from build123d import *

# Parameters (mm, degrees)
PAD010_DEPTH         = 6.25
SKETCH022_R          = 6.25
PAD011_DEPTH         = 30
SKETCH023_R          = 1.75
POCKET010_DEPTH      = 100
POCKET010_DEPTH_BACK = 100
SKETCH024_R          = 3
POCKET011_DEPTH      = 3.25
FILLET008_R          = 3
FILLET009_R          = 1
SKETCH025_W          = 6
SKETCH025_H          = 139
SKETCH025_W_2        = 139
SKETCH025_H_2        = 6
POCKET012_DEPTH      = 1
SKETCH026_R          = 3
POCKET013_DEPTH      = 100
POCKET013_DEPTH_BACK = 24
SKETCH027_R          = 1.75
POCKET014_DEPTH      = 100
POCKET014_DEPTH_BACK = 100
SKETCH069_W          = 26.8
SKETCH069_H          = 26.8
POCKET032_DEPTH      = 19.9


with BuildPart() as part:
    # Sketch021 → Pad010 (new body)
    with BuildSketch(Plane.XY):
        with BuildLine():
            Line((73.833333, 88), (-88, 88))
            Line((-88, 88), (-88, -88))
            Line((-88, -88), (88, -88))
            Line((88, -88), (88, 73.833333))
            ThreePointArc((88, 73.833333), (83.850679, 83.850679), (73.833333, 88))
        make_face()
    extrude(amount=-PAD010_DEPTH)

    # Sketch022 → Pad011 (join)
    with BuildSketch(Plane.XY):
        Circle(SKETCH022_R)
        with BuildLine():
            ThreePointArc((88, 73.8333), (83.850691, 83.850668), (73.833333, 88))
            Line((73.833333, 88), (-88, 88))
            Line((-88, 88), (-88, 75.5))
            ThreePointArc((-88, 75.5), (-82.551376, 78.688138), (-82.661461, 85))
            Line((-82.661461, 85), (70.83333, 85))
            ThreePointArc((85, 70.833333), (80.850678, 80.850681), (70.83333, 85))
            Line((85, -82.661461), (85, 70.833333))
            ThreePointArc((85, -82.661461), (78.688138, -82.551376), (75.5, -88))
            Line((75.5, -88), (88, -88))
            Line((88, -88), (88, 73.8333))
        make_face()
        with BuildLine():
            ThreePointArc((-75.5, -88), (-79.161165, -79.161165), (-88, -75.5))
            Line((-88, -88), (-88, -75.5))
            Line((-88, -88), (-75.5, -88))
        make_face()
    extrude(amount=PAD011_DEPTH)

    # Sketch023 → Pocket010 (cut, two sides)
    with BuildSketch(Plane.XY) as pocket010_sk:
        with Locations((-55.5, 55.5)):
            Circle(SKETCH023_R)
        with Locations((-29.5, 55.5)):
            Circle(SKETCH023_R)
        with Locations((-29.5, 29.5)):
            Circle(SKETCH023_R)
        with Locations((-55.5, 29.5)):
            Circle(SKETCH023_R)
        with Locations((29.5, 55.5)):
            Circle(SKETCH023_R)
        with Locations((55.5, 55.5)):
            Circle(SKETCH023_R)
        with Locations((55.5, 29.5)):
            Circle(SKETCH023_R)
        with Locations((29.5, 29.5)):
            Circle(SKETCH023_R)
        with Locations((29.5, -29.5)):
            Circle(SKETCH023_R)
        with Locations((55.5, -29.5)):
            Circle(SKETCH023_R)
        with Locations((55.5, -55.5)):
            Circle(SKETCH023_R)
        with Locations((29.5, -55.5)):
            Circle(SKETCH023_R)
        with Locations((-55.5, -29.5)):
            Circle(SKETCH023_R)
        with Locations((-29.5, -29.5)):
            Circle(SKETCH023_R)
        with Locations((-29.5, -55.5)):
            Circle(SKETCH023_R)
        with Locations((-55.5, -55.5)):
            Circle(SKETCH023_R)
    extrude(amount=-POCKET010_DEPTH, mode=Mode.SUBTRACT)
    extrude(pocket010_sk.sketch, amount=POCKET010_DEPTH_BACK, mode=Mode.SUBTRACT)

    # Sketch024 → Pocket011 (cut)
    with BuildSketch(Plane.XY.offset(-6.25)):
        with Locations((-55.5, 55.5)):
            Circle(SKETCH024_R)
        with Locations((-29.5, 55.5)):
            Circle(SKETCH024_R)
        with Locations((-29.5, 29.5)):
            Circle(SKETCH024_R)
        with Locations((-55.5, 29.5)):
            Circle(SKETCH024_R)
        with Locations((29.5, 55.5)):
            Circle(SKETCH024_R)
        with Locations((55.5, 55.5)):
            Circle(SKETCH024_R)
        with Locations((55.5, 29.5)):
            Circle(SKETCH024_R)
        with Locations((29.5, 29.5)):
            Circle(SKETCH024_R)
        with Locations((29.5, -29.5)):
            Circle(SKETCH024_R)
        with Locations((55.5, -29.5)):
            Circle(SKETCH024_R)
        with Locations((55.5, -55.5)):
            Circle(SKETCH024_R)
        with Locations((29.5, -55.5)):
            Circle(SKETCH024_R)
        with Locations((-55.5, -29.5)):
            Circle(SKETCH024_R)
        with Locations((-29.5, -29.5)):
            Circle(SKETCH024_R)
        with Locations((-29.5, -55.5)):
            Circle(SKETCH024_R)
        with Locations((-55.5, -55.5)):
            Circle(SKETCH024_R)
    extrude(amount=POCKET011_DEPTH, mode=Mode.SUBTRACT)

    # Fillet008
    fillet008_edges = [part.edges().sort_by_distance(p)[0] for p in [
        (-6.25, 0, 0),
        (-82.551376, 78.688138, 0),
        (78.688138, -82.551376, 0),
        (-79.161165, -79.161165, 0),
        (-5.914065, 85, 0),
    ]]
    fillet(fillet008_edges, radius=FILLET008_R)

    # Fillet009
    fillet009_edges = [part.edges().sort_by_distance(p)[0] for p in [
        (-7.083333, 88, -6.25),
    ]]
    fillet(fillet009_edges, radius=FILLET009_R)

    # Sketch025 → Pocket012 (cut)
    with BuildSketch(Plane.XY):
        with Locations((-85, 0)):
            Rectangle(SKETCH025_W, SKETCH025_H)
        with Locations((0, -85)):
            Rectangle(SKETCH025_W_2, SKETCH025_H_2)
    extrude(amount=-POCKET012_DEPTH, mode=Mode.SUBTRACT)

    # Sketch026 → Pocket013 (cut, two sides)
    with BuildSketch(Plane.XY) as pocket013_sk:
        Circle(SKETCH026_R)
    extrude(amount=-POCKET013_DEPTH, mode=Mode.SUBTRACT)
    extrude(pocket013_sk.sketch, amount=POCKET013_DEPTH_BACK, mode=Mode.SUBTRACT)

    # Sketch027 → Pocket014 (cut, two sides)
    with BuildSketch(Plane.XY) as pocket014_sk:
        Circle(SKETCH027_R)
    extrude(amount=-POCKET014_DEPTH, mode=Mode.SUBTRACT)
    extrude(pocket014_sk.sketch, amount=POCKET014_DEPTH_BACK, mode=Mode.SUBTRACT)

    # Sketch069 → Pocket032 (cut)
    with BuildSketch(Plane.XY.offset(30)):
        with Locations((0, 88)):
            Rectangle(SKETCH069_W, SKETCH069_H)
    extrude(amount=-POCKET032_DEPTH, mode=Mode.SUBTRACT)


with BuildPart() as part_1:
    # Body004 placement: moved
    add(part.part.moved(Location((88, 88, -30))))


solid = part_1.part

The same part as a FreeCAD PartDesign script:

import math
import FreeCAD as App
import Part
import Sketcher

V = App.Vector


def edges_at(feature, points):
    """Names of the edges that pass closest to the given points."""
    edges = feature.Shape.Edges
    near = lambda p: min(range(len(edges)), key=lambda i: edges[i].distToShape(Part.Vertex(*p))[0])
    return sorted({f"Edge{near(p) + 1}" for p in points})

doc = App.newDocument("Part")
body = doc.addObject("PartDesign::Body", "Body")

# Sketch on XY plane
sketch1 = doc.addObject("Sketcher::SketchObject", "Sketch")
body.addObject(sketch1)
sketch1.AttachmentSupport = (doc.XY_Plane, [""])
sketch1.MapMode = "FlatFace"
sketch1.addGeometry([
    Part.LineSegment(V(74, 88, 0), V(-88, 88, 0)),  # 0
    Part.LineSegment(V(-88, 88, 0), V(-88, -88, 0)),  # 1
    Part.LineSegment(V(-88, -88, 0), V(88, -88, 0)),  # 2
    Part.LineSegment(V(88, -88, 0), V(88, 74, 0)),  # 3
    Part.ArcOfCircle(Part.Circle(V(74, 74, 0), V(0, 0, 1), 14), math.radians(0), math.radians(90)),  # 4
], False)
sketch1.addConstraint([
    Sketcher.Constraint("Coincident", 0, 2, 1, 1),
    Sketcher.Constraint("Coincident", 1, 2, 2, 1),
    Sketcher.Constraint("Coincident", 2, 2, 3, 1),
    Sketcher.Constraint("Tangent", 3, 2, 4, 1),
    Sketcher.Constraint("Tangent", 4, 2, 0, 1),
    Sketcher.Constraint("Horizontal", 0),
    Sketcher.Constraint("Vertical", 1),
    Sketcher.Constraint("Horizontal", 2),
    Sketcher.Constraint("Vertical", 3),
    Sketcher.Constraint("Symmetric", 0, 2, 2, 2, -1, 1),
    Sketcher.Constraint("Equal", 2, 1),
    Sketcher.Constraint("DistanceX", 2, 1, 2, 2, 176.0),
    Sketcher.Constraint("Radius", 4, 14.166668),
])
pad1 = doc.addObject("PartDesign::Pad", "Pad")
body.addObject(pad1)
pad1.Profile = sketch1
pad1.Length = 6.25
pad1.Reversed = True

# Sketch on XY plane
sketch2 = doc.addObject("Sketcher::SketchObject", "Sketch001")
body.addObject(sketch2)
sketch2.AttachmentSupport = (doc.XY_Plane, [""])
sketch2.MapMode = "FlatFace"
sketch2.addGeometry([
    Part.Circle(V(0, 0, 0), V(0, 0, 1), 6),  # 0
    Part.ArcOfCircle(Part.Circle(V(74, 74, 0), V(0, 0, 1), 14), math.radians(0), math.radians(90)),  # 1
    Part.LineSegment(V(74, 88, 0), V(-88, 88, 0)),  # 2
    Part.LineSegment(V(-88, 88, 0), V(-88, 76, 0)),  # 3
    Part.ArcOfCircle(Part.Circle(V(-88, 82, 0), V(0, 0, 1), 6), math.radians(-90), math.radians(31)),  # 4
    Part.LineSegment(V(-83, 85, 0), V(71, 85, 0)),  # 5
    Part.ArcOfCircle(Part.Circle(V(71, 71, 0), V(0, 0, 1), 14), math.radians(0), math.radians(90)),  # 6
    Part.LineSegment(V(85, 71, 0), V(85, -83, 0)),  # 7
    Part.ArcOfCircle(Part.Circle(V(82, -88, 0), V(0, 0, 1), 6), math.radians(59), math.radians(180)),  # 8
    Part.LineSegment(V(76, -88, 0), V(88, -88, 0)),  # 9
    Part.LineSegment(V(88, -88, 0), V(88, 74, 0)),  # 10
    Part.ArcOfCircle(Part.Circle(V(-88, -88, 0), V(0, 0, 1), 12), math.radians(0), math.radians(90)),  # 11
    Part.LineSegment(V(-88, -76, 0), V(-88, -88, 0)),  # 12
    Part.LineSegment(V(-88, -88, 0), V(-76, -88, 0)),  # 13
], False)
sketch2.addConstraint([
    Sketcher.Constraint("Tangent", 1, 2, 2, 1),
    Sketcher.Constraint("Coincident", 2, 2, 3, 1),
    Sketcher.Constraint("Coincident", 3, 2, 4, 1),
    Sketcher.Constraint("Coincident", 4, 2, 5, 1),
    Sketcher.Constraint("Tangent", 5, 2, 6, 2),
    Sketcher.Constraint("Tangent", 6, 1, 7, 1),
    Sketcher.Constraint("Coincident", 7, 2, 8, 1),
    Sketcher.Constraint("Coincident", 8, 2, 9, 1),
    Sketcher.Constraint("Coincident", 9, 2, 10, 1),
    Sketcher.Constraint("Coincident", 10, 2, 1, 1),
    Sketcher.Constraint("Coincident", 11, 2, 12, 1),
    Sketcher.Constraint("Coincident", 12, 2, 13, 1),
    Sketcher.Constraint("Coincident", 13, 2, 11, 1),
    Sketcher.Constraint("Horizontal", 2),
    Sketcher.Constraint("Vertical", 3),
    Sketcher.Constraint("Horizontal", 5),
    Sketcher.Constraint("Vertical", 7),
    Sketcher.Constraint("Horizontal", 9),
    Sketcher.Constraint("Vertical", 10),
    Sketcher.Constraint("Vertical", 12),
    Sketcher.Constraint("Horizontal", 13),
    Sketcher.Constraint("Coincident", 0, 3, -1, 1),
    Sketcher.Constraint("Coincident", 12, 2, 11, 3),
    Sketcher.Constraint("Equal", 0, 4),
    Sketcher.Constraint("Equal", 1, 6),
    Sketcher.Constraint("Equal", 4, 8),
    Sketcher.Constraint("Symmetric", 2, 2, 9, 2, -1, 1),
    Sketcher.Constraint("Symmetric", 9, 2, 12, 2, -2),
    Sketcher.Constraint("Horizontal", 8, 3, 11, 3),
    Sketcher.Constraint("Vertical", 4, 3, 11, 3),
    Sketcher.Constraint("Equal", 9, 13),
    Sketcher.Constraint("Equal", 13, 3),
    Sketcher.Constraint("Diameter", 0, 12.5),
    Sketcher.Constraint("Radius", 11, 12.499999),
    Sketcher.Constraint("DistanceX", 4, 3, -1, 1, 88.0),
    Sketcher.Constraint("DistanceY", 8, 3, -1, 1, 88.0),
    Sketcher.Constraint("DistanceY", -1, 1, 4, 2, 85.0),
    Sketcher.Constraint("DistanceX", -1, 1, 6, 1, 85.0),
    Sketcher.Constraint("DistanceY", 10, 1, 10, 2, 161.8333),
    Sketcher.Constraint("Radius", 1, 14.166666),
])
pad2 = doc.addObject("PartDesign::Pad", "Pad001")
body.addObject(pad2)
pad2.Profile = sketch2
pad2.Length = 30

# Sketch on XY plane
sketch3 = doc.addObject("Sketcher::SketchObject", "Sketch002")
body.addObject(sketch3)
sketch3.AttachmentSupport = (doc.XY_Plane, [""])
sketch3.MapMode = "FlatFace"
sketch3.addGeometry([
    Part.Circle(V(-55.5, 55.5, 0), V(0, 0, 1), 1.8),  # 0
    Part.Circle(V(-29.5, 55.5, 0), V(0, 0, 1), 1.8),  # 1
    Part.Circle(V(-29.5, 29.5, 0), V(0, 0, 1), 1.8),  # 2
    Part.Circle(V(-55.5, 29.5, 0), V(0, 0, 1), 1.8),  # 3
    Part.Circle(V(29.5, 55.5, 0), V(0, 0, 1), 1.8),  # 4
    Part.Circle(V(55.5, 55.5, 0), V(0, 0, 1), 1.8),  # 5
    Part.Circle(V(55.5, 29.5, 0), V(0, 0, 1), 1.8),  # 6
    Part.Circle(V(29.5, 29.5, 0), V(0, 0, 1), 1.8),  # 7
    Part.Circle(V(29.5, -29.5, 0), V(0, 0, 1), 1.8),  # 8
    Part.Circle(V(55.5, -29.5, 0), V(0, 0, 1), 1.8),  # 9
    Part.Circle(V(55.5, -55.5, 0), V(0, 0, 1), 1.8),  # 10
    Part.Circle(V(29.5, -55.5, 0), V(0, 0, 1), 1.8),  # 11
    Part.Circle(V(-55.5, -29.5, 0), V(0, 0, 1), 1.8),  # 12
    Part.Circle(V(-29.5, -29.5, 0), V(0, 0, 1), 1.8),  # 13
    Part.Circle(V(-29.5, -55.5, 0), V(0, 0, 1), 1.8),  # 14
    Part.Circle(V(-55.5, -55.5, 0), V(0, 0, 1), 1.8),  # 15
], False)
sketch3.addConstraint([
    Sketcher.Constraint("Equal", 0, 1),
    Sketcher.Constraint("Equal", 1, 2),
    Sketcher.Constraint("Equal", 2, 3),
    Sketcher.Constraint("Equal", 3, 4),
    Sketcher.Constraint("Equal", 4, 5),
    Sketcher.Constraint("Equal", 5, 6),
    Sketcher.Constraint("Equal", 6, 7),
    Sketcher.Constraint("Equal", 7, 8),
    Sketcher.Constraint("Equal", 8, 9),
    Sketcher.Constraint("Equal", 9, 10),
    Sketcher.Constraint("Equal", 10, 11),
    Sketcher.Constraint("Equal", 11, 12),
    Sketcher.Constraint("Equal", 12, 13),
    Sketcher.Constraint("Equal", 13, 14),
    Sketcher.Constraint("Equal", 14, 15),
    Sketcher.Constraint("Symmetric", 2, 3, 8, 3, -1, 1),
    Sketcher.Constraint("Symmetric", 3, 3, 9, 3, -1, 1),
    Sketcher.Constraint("Symmetric", 0, 3, 10, 3, -1, 1),
    Sketcher.Constraint("Symmetric", 1, 3, 11, 3, -1, 1),
    Sketcher.Constraint("Symmetric", 6, 3, 12, 3, -1, 1),
    Sketcher.Constraint("Symmetric", 7, 3, 13, 3, -1, 1),
    Sketcher.Constraint("Symmetric", 4, 3, 14, 3, -1, 1),
    Sketcher.Constraint("Symmetric", 5, 3, 15, 3, -1, 1),
    Sketcher.Constraint("Symmetric", 1, 3, 4, 3, -2),
    Sketcher.Constraint("Symmetric", 0, 3, 5, 3, -2),
    Sketcher.Constraint("Symmetric", 3, 3, 6, 3, -2),
    Sketcher.Constraint("Symmetric", 2, 3, 7, 3, -2),
    Sketcher.Constraint("Horizontal", 0, 3, 1, 3),
    Sketcher.Constraint("Horizontal", 2, 3, 3, 3),
    Sketcher.Constraint("Vertical", 1, 3, 2, 3),
    Sketcher.Constraint("Vertical", 0, 3, 3, 3),
    Sketcher.Constraint("Diameter", 0, 3.5),
    Sketcher.Constraint("DistanceX", 0, 3, 1, 3, 26.0),
    Sketcher.Constraint("DistanceY", 2, 3, 1, 3, 26.0),
    Sketcher.Constraint("DistanceX", 1, 3, 4, 3, 59.0),
    Sketcher.Constraint("DistanceY", 8, 3, 7, 3, 59.0),
])
pocket1 = doc.addObject("PartDesign::Pocket", "Pocket")
body.addObject(pocket1)
pocket1.Profile = sketch3
pocket1.Type = "ThroughAll"
pocket1.Midplane = True

# Sketch on XY plane
sketch4 = doc.addObject("Sketcher::SketchObject", "Sketch003")
body.addObject(sketch4)
sketch4.AttachmentSupport = (doc.XY_Plane, [""])
sketch4.MapMode = "FlatFace"
sketch4.AttachmentOffset = App.Placement(V(0, 0, -6.25), App.Rotation())
sketch4.addGeometry([
    Part.Circle(V(-55.5, 55.5, 0), V(0, 0, 1), 3),  # 0
    Part.Circle(V(-29.5, 55.5, 0), V(0, 0, 1), 3),  # 1
    Part.Circle(V(-29.5, 29.5, 0), V(0, 0, 1), 3),  # 2
    Part.Circle(V(-55.5, 29.5, 0), V(0, 0, 1), 3),  # 3
    Part.Circle(V(29.5, 55.5, 0), V(0, 0, 1), 3),  # 4
    Part.Circle(V(55.5, 55.5, 0), V(0, 0, 1), 3),  # 5
    Part.Circle(V(55.5, 29.5, 0), V(0, 0, 1), 3),  # 6
    Part.Circle(V(29.5, 29.5, 0), V(0, 0, 1), 3),  # 7
    Part.Circle(V(29.5, -29.5, 0), V(0, 0, 1), 3),  # 8
    Part.Circle(V(55.5, -29.5, 0), V(0, 0, 1), 3),  # 9
    Part.Circle(V(55.5, -55.5, 0), V(0, 0, 1), 3),  # 10
    Part.Circle(V(29.5, -55.5, 0), V(0, 0, 1), 3),  # 11
    Part.Circle(V(-55.5, -29.5, 0), V(0, 0, 1), 3),  # 12
    Part.Circle(V(-29.5, -29.5, 0), V(0, 0, 1), 3),  # 13
    Part.Circle(V(-29.5, -55.5, 0), V(0, 0, 1), 3),  # 14
    Part.Circle(V(-55.5, -55.5, 0), V(0, 0, 1), 3),  # 15
], False)
sketch4.addConstraint([
    Sketcher.Constraint("Equal", 0, 1),
    Sketcher.Constraint("Equal", 1, 2),
    Sketcher.Constraint("Equal", 2, 3),
    Sketcher.Constraint("Equal", 3, 4),
    Sketcher.Constraint("Equal", 4, 5),
    Sketcher.Constraint("Equal", 5, 6),
    Sketcher.Constraint("Equal", 6, 7),
    Sketcher.Constraint("Equal", 7, 8),
    Sketcher.Constraint("Equal", 8, 9),
    Sketcher.Constraint("Equal", 9, 10),
    Sketcher.Constraint("Equal", 10, 11),
    Sketcher.Constraint("Equal", 11, 12),
    Sketcher.Constraint("Equal", 12, 13),
    Sketcher.Constraint("Equal", 13, 14),
    Sketcher.Constraint("Equal", 14, 15),
    Sketcher.Constraint("Symmetric", 2, 3, 8, 3, -1, 1),
    Sketcher.Constraint("Symmetric", 3, 3, 9, 3, -1, 1),
    Sketcher.Constraint("Symmetric", 0, 3, 10, 3, -1, 1),
    Sketcher.Constraint("Symmetric", 1, 3, 11, 3, -1, 1),
    Sketcher.Constraint("Symmetric", 6, 3, 12, 3, -1, 1),
    Sketcher.Constraint("Symmetric", 7, 3, 13, 3, -1, 1),
    Sketcher.Constraint("Symmetric", 4, 3, 14, 3, -1, 1),
    Sketcher.Constraint("Symmetric", 5, 3, 15, 3, -1, 1),
    Sketcher.Constraint("Symmetric", 1, 3, 4, 3, -2),
    Sketcher.Constraint("Symmetric", 0, 3, 5, 3, -2),
    Sketcher.Constraint("Symmetric", 3, 3, 6, 3, -2),
    Sketcher.Constraint("Symmetric", 2, 3, 7, 3, -2),
    Sketcher.Constraint("Horizontal", 0, 3, 1, 3),
    Sketcher.Constraint("Horizontal", 2, 3, 3, 3),
    Sketcher.Constraint("Vertical", 1, 3, 2, 3),
    Sketcher.Constraint("Vertical", 0, 3, 3, 3),
    Sketcher.Constraint("Diameter", 0, 6.0),
    Sketcher.Constraint("DistanceX", 0, 3, 1, 3, 26.0),
    Sketcher.Constraint("DistanceY", 2, 3, 1, 3, 26.0),
    Sketcher.Constraint("DistanceX", 1, 3, 4, 3, 59.0),
    Sketcher.Constraint("DistanceY", 8, 3, 7, 3, 59.0),
])
pocket2 = doc.addObject("PartDesign::Pocket", "Pocket001")
body.addObject(pocket2)
pocket2.Profile = sketch4
pocket2.Length = 3.25
pocket2.Reversed = True
doc.recompute()

fillet = doc.addObject("PartDesign::Fillet", "Fillet")
body.addObject(fillet)
fillet.Base = (pocket2, edges_at(pocket2, [
    (-6.25, 0, 0),
    (-82.551, 78.688, 0),
    (78.688, -82.551, 0),
    (-79.161, -79.161, 0),
    (-5.914, 85, 0),
]))
fillet.Radius = 3
doc.recompute()

fillet2 = doc.addObject("PartDesign::Fillet", "Fillet001")
body.addObject(fillet2)
fillet2.Base = (fillet, edges_at(fillet, [(-7.083, 88, -6.25)]))
fillet2.Radius = 1

# Sketch on XY plane
sketch5 = doc.addObject("Sketcher::SketchObject", "Sketch004")
body.addObject(sketch5)
sketch5.AttachmentSupport = (doc.XY_Plane, [""])
sketch5.MapMode = "FlatFace"
sketch5.addGeometry([
    Part.LineSegment(V(-88, 70, 0), V(-88, -70, 0)),  # 0
    Part.LineSegment(V(-88, -70, 0), V(-82, -70, 0)),  # 1
    Part.LineSegment(V(-82, -70, 0), V(-82, 70, 0)),  # 2
    Part.LineSegment(V(-82, 70, 0), V(-88, 70, 0)),  # 3
    Part.LineSegment(V(-70, -82, 0), V(-70, -88, 0)),  # 4
    Part.LineSegment(V(-70, -88, 0), V(70, -88, 0)),  # 5
    Part.LineSegment(V(70, -88, 0), V(70, -82, 0)),  # 6
    Part.LineSegment(V(70, -82, 0), V(-70, -82, 0)),  # 7
], False)
sketch5.addConstraint([
    Sketcher.Constraint("Coincident", 0, 2, 1, 1),
    Sketcher.Constraint("Coincident", 1, 2, 2, 1),
    Sketcher.Constraint("Coincident", 2, 2, 3, 1),
    Sketcher.Constraint("Coincident", 3, 2, 0, 1),
    Sketcher.Constraint("Coincident", 4, 2, 5, 1),
    Sketcher.Constraint("Coincident", 5, 2, 6, 1),
    Sketcher.Constraint("Coincident", 6, 2, 7, 1),
    Sketcher.Constraint("Coincident", 7, 2, 4, 1),
    Sketcher.Constraint("Vertical", 0),
    Sketcher.Constraint("Horizontal", 1),
    Sketcher.Constraint("Vertical", 2),
    Sketcher.Constraint("Horizontal", 3),
    Sketcher.Constraint("Vertical", 4),
    Sketcher.Constraint("Horizontal", 5),
    Sketcher.Constraint("Vertical", 6),
    Sketcher.Constraint("Horizontal", 7),
    Sketcher.Constraint("Equal", 7, 0),
    Sketcher.Constraint("Equal", 3, 4),
    Sketcher.Constraint("DistanceX", 1, 1, 1, 2, 6.0),
    Sketcher.Constraint("DistanceX", 5, 1, 5, 2, 139.0),
    Sketcher.Constraint("DistanceX", 0, 2, -1, 1, 88.0),
    Sketcher.Constraint("DistanceY", 4, 2, -1, 1, 88.0),
    Sketcher.Constraint("DistanceY", 0, 2, -1, 1, 69.5),
    Sketcher.Constraint("DistanceX", 4, 2, -1, 1, 69.5),
])
pocket3 = doc.addObject("PartDesign::Pocket", "Pocket002")
body.addObject(pocket3)
pocket3.Profile = sketch5
pocket3.Length = 1

# Sketch on XY plane
sketch6 = doc.addObject("Sketcher::SketchObject", "Sketch005")
body.addObject(sketch6)
sketch6.AttachmentSupport = (doc.XY_Plane, [""])
sketch6.MapMode = "FlatFace"
sketch6.addGeometry(Part.Circle(V(0, 0, 0), V(0, 0, 1), 3), False)
sketch6.addConstraint([
    Sketcher.Constraint("Coincident", 0, 3, -1, 1),
    Sketcher.Constraint("Diameter", 0, 6.0),
])
pocket4 = doc.addObject("PartDesign::Pocket", "Pocket003")
body.addObject(pocket4)
pocket4.Profile = sketch6
pocket4.Type = "TwoLengths"
pocket4.Length = 100
pocket4.Length2 = 24

# Sketch on XY plane
sketch7 = doc.addObject("Sketcher::SketchObject", "Sketch006")
body.addObject(sketch7)
sketch7.AttachmentSupport = (doc.XY_Plane, [""])
sketch7.MapMode = "FlatFace"
sketch7.addGeometry(Part.Circle(V(0, 0, 0), V(0, 0, 1), 1.8), False)
sketch7.addConstraint([
    Sketcher.Constraint("Coincident", 0, 3, -1, 1),
    Sketcher.Constraint("Diameter", 0, 3.5),
])
pocket5 = doc.addObject("PartDesign::Pocket", "Pocket004")
body.addObject(pocket5)
pocket5.Profile = sketch7
pocket5.Type = "ThroughAll"
pocket5.Midplane = True

# Sketch on XY plane
sketch8 = doc.addObject("Sketcher::SketchObject", "Sketch007")
body.addObject(sketch8)
sketch8.AttachmentSupport = (doc.XY_Plane, [""])
sketch8.MapMode = "FlatFace"
sketch8.AttachmentOffset = App.Placement(V(0, 0, 30), App.Rotation())
sketch8.addGeometry([
    Part.LineSegment(V(-13, 101, 0), V(-13, 75, 0)),
    Part.LineSegment(V(-13, 75, 0), V(13, 75, 0)),
    Part.LineSegment(V(13, 75, 0), V(13, 101, 0)),
    Part.LineSegment(V(13, 101, 0), V(-13, 101, 0)),
], False)
sketch8.addConstraint([
    Sketcher.Constraint("Coincident", 0, 2, 1, 1),
    Sketcher.Constraint("Coincident", 1, 2, 2, 1),
    Sketcher.Constraint("Coincident", 2, 2, 3, 1),
    Sketcher.Constraint("Coincident", 3, 2, 0, 1),
    Sketcher.Constraint("Vertical", 0),
    Sketcher.Constraint("Horizontal", 1),
    Sketcher.Constraint("Vertical", 2),
    Sketcher.Constraint("Horizontal", 3),
    Sketcher.Constraint("Equal", 3, 0),
    Sketcher.Constraint("DistanceX", 1, 1, 1, 2, 26.8),
    Sketcher.Constraint("DistanceX", 0, 2, -1, 1, 13.4),
    Sketcher.Constraint("DistanceY", -1, 1, 0, 2, 74.6),
])
pocket6 = doc.addObject("PartDesign::Pocket", "Pocket005")
body.addObject(pocket6)
pocket6.Profile = sketch8
pocket6.Length = 19.9
body2 = doc.addObject("PartDesign::Body", "Body001")
doc.recompute()

body.Placement = App.Placement(V(88, 88, -30), App.Rotation(V(0, 0, 1), 0))
boolean = doc.addObject("PartDesign::Boolean", "Boolean")
body2.addObject(boolean)
boolean.Type = "Fuse"
boolean.addObjects([body])

doc.recompute()
